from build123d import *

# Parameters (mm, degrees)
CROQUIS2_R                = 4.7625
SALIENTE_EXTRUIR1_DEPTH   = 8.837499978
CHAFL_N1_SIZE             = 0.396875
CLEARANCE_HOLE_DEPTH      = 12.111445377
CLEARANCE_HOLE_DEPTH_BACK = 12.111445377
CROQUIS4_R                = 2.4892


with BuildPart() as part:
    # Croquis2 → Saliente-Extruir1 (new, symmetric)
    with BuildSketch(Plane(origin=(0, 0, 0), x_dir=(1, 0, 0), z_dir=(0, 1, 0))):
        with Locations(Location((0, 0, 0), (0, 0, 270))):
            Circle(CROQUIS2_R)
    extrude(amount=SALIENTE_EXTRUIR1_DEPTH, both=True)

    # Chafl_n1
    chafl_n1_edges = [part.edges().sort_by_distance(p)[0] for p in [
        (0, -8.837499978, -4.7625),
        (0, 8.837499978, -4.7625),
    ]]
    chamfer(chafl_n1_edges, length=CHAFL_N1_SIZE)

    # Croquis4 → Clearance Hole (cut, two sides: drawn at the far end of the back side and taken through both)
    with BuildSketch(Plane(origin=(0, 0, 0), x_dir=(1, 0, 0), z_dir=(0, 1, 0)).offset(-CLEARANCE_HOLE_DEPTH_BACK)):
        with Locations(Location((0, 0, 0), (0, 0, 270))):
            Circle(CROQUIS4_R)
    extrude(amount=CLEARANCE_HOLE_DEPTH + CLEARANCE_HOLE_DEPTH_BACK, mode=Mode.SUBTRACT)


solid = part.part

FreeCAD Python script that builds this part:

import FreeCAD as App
import Part
import Sketcher
Q = App.Units.Quantity


def edges_at(feature, points):
    """Names of the edges that pass closest to the given points."""
    edges = feature.Shape.Edges
    near = lambda p: min(range(len(edges)), key=lambda i: edges[i].distToShape(Part.Vertex(*p))[0])
    return sorted({f"Edge{near(p) + 1}" for p in points})

doc = App.newDocument("Part")
body = doc.addObject("PartDesign::Body", "Body")

sketch1 = doc.addObject("Sketcher::SketchObject", "Sketch")
body.addObject(sketch1)
sketch1.AttachmentSupport = (doc.XZ_Plane, [""])
sketch1.MapMode = "FlatFace"
sketch1.addGeometry(Part.Circle(App.Vector(0, 0, 0), App.Vector(0, 0, 1), 4.8), False)
sketch1.addConstraint([
    Sketcher.Constraint("Coincident", 0, 3, -1, 1),
    Sketcher.Constraint("Diameter", 0, Q("0.375 in")),
])
pad1 = doc.addObject("PartDesign::Pad", "Pad")
body.addObject(pad1)
pad1.Profile = sketch1
pad1.Length = 17.675
pad1.Midplane = True
doc.recompute()

chamfer = doc.addObject("PartDesign::Chamfer", "Chamfer")
body.addObject(chamfer)
chamfer.Base = (pad1, edges_at(pad1, [(0, -8.837, -4.763), (0, 8.837, -4.763)]))
chamfer.Size = Q("0.015625 in")

sketch2 = doc.addObject("Sketcher::SketchObject", "Sketch001")
body.addObject(sketch2)
sketch2.AttachmentSupport = (doc.XZ_Plane, [""])
sketch2.MapMode = "FlatFace"
sketch2.addGeometry(Part.Circle(App.Vector(0, 0, 0), App.Vector(0, 0, 1), 2.5), False)
sketch2.addConstraint([
    Sketcher.Constraint("Coincident", 0, 3, -1, 1),
    Sketcher.Constraint("Diameter", 0, Q("0.196 in")),
])
pocket1 = doc.addObject("PartDesign::Pocket", "Pocket")
body.addObject(pocket1)
pocket1.Profile = sketch2
pocket1.Type = "ThroughAll"
pocket1.Midplane = True

doc.recompute()
